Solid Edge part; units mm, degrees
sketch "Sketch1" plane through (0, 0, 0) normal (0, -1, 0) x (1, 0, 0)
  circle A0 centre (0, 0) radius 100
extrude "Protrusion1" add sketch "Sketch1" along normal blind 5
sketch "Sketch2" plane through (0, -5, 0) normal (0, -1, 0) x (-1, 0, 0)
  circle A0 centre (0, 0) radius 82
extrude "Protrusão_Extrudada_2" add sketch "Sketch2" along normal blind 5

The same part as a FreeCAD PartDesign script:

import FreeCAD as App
import Part
import Sketcher
from FreeCAD import Vector
Q = App.Units.Quantity

doc = App.newDocument("Part")
body = doc.addObject("PartDesign::Body", "Body")

sketch1 = doc.addObject("Sketcher::SketchObject", "Sketch")
body.addObject(sketch1)
sketch1.AttachmentSupport = (doc.XZ_Plane, [""])
sketch1.MapMode = "FlatFace"
sketch1.addGeometry(Part.Circle(Vector(0, 0, 0), Vector(0, 0, 1), 100), False)
sketch1.addConstraint(Sketcher.Constraint("Coincident", 0, 3, -1, 1))
sketch1.addConstraint(Sketcher.Constraint("Diameter", 0, Q("200 mm")))
pad1 = doc.addObject("PartDesign::Pad", "Pad")
body.addObject(pad1)
pad1.Profile = sketch1
pad1.Length = 5

sketch2 = doc.addObject("Sketcher::SketchObject", "Sketch001")
body.addObject(sketch2)
sketch2.AttachmentSupport = (doc.XZ_Plane, [""])
sketch2.MapMode = "FlatFace"
sketch2.AttachmentOffset = App.Placement(Vector(0, 0, 5), App.Rotation())
sketch2.addGeometry(Part.Circle(Vector(0, 0, 0), Vector(0, 0, 1), 82), False)
sketch2.addConstraint(Sketcher.Constraint("Coincident", 0, 3, -1, 1))
sketch2.addConstraint(Sketcher.Constraint("Diameter", 0, Q("164 mm")))
pad2 = doc.addObject("PartDesign::Pad", "Pad001")
body.addObject(pad2)
pad2.Profile = sketch2
pad2.Length = 5

doc.recompute()
